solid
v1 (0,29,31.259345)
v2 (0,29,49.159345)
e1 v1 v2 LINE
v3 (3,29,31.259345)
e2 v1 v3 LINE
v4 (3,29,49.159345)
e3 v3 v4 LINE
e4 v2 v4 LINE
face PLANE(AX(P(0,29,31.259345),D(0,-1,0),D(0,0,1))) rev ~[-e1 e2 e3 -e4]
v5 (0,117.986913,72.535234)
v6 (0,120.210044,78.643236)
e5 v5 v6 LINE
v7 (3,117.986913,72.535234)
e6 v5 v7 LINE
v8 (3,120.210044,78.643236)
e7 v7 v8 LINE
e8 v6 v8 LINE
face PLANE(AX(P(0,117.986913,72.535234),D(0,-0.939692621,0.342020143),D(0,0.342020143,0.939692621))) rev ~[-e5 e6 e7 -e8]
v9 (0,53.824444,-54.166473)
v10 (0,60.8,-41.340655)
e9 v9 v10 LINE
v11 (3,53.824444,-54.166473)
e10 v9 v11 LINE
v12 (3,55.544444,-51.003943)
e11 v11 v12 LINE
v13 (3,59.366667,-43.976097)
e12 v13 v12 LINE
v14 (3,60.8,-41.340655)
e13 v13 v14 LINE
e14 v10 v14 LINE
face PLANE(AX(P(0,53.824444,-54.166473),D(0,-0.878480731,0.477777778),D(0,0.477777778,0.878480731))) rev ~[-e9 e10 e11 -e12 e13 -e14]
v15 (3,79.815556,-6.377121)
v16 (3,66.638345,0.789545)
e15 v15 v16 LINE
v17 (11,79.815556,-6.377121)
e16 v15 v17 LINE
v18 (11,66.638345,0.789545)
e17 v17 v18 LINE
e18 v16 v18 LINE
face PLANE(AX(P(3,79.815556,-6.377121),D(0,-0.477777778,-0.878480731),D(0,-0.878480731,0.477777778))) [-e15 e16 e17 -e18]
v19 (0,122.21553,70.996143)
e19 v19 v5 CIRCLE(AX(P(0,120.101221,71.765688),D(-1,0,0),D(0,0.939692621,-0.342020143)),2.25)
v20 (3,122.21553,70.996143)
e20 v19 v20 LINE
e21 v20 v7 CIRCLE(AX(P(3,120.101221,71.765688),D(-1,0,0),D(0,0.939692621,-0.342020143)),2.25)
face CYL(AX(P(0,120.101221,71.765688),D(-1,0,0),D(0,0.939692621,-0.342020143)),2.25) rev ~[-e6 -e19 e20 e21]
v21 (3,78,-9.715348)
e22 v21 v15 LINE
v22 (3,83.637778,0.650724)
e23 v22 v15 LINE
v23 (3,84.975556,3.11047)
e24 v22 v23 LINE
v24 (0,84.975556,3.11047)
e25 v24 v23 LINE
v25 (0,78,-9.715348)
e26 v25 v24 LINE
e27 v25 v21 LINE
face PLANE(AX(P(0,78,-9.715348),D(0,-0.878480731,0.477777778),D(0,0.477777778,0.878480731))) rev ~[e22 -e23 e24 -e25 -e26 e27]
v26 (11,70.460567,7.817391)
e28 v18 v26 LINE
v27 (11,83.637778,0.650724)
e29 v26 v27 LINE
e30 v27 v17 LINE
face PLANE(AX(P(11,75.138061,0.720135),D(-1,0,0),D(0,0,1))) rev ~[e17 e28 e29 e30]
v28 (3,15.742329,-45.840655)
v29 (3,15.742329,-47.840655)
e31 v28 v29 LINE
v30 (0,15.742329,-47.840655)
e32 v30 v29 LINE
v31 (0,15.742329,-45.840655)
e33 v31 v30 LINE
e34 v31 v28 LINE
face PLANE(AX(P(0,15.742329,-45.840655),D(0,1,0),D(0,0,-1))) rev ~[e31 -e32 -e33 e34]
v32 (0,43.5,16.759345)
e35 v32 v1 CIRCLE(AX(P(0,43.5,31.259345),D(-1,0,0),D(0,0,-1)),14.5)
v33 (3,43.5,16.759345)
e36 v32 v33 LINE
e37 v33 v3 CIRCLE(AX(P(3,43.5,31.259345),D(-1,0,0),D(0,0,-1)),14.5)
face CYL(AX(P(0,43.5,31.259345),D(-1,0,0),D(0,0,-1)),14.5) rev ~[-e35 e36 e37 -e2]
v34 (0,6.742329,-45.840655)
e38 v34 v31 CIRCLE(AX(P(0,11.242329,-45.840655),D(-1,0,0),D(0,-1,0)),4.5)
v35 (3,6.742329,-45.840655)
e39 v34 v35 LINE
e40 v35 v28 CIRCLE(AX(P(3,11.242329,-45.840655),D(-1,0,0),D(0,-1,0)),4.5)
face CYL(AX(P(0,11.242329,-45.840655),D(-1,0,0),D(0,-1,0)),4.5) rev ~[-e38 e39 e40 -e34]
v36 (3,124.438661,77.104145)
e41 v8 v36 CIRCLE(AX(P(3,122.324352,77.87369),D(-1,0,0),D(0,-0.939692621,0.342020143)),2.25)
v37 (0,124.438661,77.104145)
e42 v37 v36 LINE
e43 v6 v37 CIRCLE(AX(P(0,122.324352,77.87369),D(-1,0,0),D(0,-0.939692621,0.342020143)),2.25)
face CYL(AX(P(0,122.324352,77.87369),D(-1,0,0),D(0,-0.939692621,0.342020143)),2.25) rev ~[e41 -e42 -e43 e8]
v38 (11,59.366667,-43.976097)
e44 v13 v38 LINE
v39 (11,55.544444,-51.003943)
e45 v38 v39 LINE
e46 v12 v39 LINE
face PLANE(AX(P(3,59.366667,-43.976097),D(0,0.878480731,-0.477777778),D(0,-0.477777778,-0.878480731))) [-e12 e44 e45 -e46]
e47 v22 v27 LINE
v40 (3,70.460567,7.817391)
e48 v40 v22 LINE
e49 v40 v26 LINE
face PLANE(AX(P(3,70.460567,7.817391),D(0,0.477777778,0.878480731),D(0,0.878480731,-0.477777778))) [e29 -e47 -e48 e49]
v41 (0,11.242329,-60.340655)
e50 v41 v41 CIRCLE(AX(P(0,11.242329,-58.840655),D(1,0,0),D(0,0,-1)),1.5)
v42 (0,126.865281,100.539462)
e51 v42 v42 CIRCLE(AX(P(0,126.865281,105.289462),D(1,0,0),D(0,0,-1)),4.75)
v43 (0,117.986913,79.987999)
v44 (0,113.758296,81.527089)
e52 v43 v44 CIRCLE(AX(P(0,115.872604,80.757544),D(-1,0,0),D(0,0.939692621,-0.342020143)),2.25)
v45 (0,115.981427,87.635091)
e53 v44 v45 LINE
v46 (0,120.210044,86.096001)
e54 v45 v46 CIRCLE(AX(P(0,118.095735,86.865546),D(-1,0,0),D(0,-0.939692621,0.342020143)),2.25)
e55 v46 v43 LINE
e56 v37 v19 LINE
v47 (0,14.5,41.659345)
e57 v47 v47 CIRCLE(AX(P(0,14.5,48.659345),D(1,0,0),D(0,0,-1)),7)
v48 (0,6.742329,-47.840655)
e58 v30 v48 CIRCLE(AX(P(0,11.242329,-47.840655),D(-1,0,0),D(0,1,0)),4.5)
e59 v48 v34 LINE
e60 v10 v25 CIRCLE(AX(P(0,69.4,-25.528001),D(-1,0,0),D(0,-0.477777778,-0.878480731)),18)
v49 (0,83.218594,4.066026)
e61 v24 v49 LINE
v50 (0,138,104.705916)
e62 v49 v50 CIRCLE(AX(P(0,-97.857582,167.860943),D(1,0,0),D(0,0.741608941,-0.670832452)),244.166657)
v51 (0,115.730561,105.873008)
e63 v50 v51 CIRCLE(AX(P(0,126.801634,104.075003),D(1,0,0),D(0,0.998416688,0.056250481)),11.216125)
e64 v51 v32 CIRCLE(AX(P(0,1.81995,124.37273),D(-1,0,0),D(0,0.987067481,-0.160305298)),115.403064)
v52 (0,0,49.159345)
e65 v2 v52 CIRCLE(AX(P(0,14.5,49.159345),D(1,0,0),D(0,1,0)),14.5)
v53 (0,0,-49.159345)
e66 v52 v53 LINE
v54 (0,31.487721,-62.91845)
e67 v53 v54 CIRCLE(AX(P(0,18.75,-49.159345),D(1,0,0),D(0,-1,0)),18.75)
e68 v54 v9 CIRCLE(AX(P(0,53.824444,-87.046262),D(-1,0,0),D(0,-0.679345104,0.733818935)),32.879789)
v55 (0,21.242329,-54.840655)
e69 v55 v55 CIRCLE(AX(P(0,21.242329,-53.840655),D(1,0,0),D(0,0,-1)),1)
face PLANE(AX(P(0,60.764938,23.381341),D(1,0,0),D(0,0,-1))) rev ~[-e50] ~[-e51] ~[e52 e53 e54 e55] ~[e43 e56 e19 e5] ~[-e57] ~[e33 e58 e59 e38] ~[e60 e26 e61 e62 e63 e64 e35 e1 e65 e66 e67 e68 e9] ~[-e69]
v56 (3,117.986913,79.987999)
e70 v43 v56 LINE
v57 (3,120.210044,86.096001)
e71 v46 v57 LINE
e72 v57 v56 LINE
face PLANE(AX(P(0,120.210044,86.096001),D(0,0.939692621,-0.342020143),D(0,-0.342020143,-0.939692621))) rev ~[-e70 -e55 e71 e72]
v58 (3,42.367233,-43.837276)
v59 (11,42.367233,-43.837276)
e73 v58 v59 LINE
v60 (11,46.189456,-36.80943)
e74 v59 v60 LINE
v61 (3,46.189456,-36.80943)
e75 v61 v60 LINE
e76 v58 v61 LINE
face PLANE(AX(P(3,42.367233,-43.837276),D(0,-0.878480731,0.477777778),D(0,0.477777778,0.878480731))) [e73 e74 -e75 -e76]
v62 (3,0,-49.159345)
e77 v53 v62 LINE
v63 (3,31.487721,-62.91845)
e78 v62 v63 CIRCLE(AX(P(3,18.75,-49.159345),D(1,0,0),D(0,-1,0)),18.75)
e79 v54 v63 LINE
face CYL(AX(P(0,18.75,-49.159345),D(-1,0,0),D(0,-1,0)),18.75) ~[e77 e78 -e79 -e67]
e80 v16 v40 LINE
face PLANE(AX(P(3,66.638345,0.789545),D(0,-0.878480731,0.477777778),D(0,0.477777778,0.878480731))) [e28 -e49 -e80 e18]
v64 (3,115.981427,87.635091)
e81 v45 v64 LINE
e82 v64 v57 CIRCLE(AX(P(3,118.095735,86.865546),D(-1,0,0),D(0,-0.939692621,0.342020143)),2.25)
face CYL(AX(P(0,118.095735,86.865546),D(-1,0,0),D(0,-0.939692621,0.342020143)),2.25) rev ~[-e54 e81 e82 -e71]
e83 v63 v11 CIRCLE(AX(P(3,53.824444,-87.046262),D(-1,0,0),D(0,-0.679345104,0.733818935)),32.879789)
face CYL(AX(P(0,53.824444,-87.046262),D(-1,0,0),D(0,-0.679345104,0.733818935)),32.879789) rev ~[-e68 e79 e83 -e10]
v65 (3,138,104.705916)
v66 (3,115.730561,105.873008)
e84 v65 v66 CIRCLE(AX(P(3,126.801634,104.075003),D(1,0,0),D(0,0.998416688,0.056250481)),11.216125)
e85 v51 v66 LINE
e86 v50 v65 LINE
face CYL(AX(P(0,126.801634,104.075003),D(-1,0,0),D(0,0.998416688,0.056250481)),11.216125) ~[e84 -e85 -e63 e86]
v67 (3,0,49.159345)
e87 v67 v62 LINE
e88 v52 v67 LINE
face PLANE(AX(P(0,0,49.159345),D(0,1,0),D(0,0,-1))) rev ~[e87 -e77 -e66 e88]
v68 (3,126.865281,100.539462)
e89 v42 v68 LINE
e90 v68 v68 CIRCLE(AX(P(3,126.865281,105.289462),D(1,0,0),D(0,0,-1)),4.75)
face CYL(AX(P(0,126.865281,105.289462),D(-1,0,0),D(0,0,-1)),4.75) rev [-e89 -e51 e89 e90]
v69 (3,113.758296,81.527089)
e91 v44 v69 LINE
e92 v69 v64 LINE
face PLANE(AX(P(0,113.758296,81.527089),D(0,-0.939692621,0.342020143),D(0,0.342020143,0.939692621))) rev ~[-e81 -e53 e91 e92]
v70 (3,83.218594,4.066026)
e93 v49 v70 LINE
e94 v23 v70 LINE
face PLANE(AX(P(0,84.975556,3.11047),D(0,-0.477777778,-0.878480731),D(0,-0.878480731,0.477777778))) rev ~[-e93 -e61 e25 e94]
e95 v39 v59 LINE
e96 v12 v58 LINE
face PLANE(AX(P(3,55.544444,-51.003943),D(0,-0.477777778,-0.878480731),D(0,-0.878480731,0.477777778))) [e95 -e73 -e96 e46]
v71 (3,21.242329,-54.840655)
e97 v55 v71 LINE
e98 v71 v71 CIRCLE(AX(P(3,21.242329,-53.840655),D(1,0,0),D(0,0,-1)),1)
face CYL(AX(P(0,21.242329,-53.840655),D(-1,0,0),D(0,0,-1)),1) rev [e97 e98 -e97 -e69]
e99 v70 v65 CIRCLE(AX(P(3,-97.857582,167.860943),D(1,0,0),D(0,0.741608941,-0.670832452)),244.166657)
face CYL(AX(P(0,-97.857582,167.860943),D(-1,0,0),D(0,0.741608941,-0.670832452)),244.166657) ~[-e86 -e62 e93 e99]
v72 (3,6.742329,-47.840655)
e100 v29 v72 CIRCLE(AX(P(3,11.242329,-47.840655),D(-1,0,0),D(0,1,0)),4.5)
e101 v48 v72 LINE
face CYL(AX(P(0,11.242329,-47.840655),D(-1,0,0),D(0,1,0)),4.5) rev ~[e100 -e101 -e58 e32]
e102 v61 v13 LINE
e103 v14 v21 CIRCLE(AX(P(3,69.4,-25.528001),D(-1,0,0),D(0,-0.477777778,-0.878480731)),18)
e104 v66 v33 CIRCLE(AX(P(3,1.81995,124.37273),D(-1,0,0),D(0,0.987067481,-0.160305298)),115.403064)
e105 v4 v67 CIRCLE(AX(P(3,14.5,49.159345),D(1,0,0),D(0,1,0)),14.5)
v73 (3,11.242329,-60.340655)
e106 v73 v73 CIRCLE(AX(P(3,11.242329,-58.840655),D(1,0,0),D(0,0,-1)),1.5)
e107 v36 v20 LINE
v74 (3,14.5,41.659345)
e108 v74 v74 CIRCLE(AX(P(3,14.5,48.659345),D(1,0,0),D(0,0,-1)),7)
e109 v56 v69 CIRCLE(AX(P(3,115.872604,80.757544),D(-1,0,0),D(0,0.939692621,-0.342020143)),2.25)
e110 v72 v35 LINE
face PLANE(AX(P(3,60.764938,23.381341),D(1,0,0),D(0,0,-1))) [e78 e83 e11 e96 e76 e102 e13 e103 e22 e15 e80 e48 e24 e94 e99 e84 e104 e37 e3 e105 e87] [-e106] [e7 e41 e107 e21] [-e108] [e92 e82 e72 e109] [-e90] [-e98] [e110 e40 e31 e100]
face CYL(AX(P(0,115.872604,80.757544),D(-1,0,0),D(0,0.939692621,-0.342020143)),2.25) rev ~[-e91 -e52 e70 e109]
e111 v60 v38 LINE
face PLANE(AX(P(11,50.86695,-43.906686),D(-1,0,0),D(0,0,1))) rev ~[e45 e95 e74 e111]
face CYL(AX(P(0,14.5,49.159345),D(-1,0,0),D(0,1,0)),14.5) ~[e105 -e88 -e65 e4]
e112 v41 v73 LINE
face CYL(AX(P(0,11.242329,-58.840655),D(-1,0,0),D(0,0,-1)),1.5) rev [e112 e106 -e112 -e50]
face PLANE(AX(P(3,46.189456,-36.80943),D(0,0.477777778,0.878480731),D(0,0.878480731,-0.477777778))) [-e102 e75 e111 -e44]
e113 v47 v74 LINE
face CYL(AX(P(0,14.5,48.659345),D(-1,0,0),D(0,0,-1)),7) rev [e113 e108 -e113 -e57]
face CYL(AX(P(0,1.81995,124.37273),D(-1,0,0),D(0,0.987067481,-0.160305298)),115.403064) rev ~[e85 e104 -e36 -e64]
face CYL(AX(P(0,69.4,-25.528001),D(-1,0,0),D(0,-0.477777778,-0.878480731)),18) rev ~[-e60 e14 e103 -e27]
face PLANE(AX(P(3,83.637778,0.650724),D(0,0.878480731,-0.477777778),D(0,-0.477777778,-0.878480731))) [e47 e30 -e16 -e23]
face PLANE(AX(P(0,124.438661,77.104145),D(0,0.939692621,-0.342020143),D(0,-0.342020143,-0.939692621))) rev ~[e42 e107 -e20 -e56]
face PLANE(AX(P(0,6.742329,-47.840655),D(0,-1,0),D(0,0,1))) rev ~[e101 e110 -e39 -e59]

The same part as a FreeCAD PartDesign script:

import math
import FreeCAD as App
import Part
import Sketcher
Q = App.Units.Quantity


def add_polygon(sketch, points):
    """Adds a closed chain of lines whose ends are joined by coincident constraints."""
    first, n = sketch.GeometryCount, len(points)
    for a, b in zip(points, points[1:] + points[:1]):
        sketch.addGeometry(Part.LineSegment(App.Vector(*a, 0), App.Vector(*b, 0)), False)
    for i in range(n):
        sketch.addConstraint(Sketcher.Constraint("Coincident", first + i, 2, first + (i + 1) % n, 1))

doc = App.newDocument("Part")
body = doc.addObject("PartDesign::Body", "Body")

# Sketch on YZ plane
sketch1 = doc.addObject("Sketcher::SketchObject", "Sketch")
body.addObject(sketch1)
sketch1.AttachmentSupport = (doc.YZ_Plane, [""])
sketch1.MapMode = "FlatFace"
sketch1.addGeometry([
    Part.LineSegment(App.Vector(0, 49.159345, 0), App.Vector(0, -49.159345, 0)),  # 0
    Part.ArcOfCircle(Part.Circle(App.Vector(18.75, -49.159345, 0), App.Vector(0, 0, 1), 18.75), math.radians(180), math.radians(312.792488)),  # 1
    Part.ArcOfCircle(Part.Circle(App.Vector(53.824444, -87.046262, 0), App.Vector(0, 0, 1), 32.879789), math.radians(90), math.radians(132.792488)),  # 2
    Part.LineSegment(App.Vector(53.824444, -54.166473, 0), App.Vector(60.8, -41.340655, 0)),  # 3
    Part.ArcOfCircle(Part.Circle(App.Vector(69.4, -25.528001, 0), App.Vector(0, 0, 1), 18), math.radians(61.459635), math.radians(241.459635)),  # 4
    Part.LineSegment(App.Vector(78, -9.715348, 0), App.Vector(84.975556, 3.11047, 0)),  # 5
    Part.LineSegment(App.Vector(84.975556, 3.11047, 0), App.Vector(83.218594, 4.066026, 0)),  # 6
    Part.ArcOfCircle(Part.Circle(App.Vector(-97.857582, 167.860943, 0), App.Vector(0, 0, 1), 244.166657), math.radians(-42.131346), math.radians(-14.990294)),  # 7
    Part.ArcOfCircle(Part.Circle(App.Vector(126.801634, 104.075003, 0), App.Vector(0, 0, 1), 11.216125), math.radians(3.224617), math.radians(170.775383)),  # 8
    Part.ArcOfCircle(Part.Circle(App.Vector(1.81995, 124.37273, 0), App.Vector(0, 0, 1), 115.403064), math.radians(-68.827973), math.radians(-9.224617)),  # 9
    Part.ArcOfCircle(Part.Circle(App.Vector(43.5, 31.259345, 0), App.Vector(0, 0, 1), 14.5), math.radians(-180), math.radians(-90)),  # 10
    Part.LineSegment(App.Vector(29, 31.259345, 0), App.Vector(29, 49.159345, 0)),  # 11
    Part.ArcOfCircle(Part.Circle(App.Vector(14.5, 49.159345, 0), App.Vector(0, 0, 1), 14.5), math.radians(0), math.radians(180)),  # 12
    Part.Circle(App.Vector(14.5, 48.659345, 0), App.Vector(0, 0, 1), 7),  # 13
    Part.ArcOfCircle(Part.Circle(App.Vector(11.242329, -45.840655, 0), App.Vector(0, 0, 1), 4.5), math.radians(0), math.radians(180)),  # 14
    Part.LineSegment(App.Vector(15.742329, -45.840655, 0), App.Vector(15.742329, -47.840655, 0)),  # 15
    Part.ArcOfCircle(Part.Circle(App.Vector(11.242329, -47.840655, 0), App.Vector(0, 0, 1), 4.5), math.radians(180), math.radians(360)),  # 16
    Part.LineSegment(App.Vector(6.742329, -47.840655, 0), App.Vector(6.742329, -45.840655, 0)),  # 17
    Part.Circle(App.Vector(11.242329, -58.840655, 0), App.Vector(0, 0, 1), 1.5),  # 18
    Part.Circle(App.Vector(21.242329, -53.840655, 0), App.Vector(0, 0, 1), 1),  # 19
    Part.Circle(App.Vector(126.865281, 105.289462, 0), App.Vector(0, 0, 1), 4.75),  # 20
    Part.ArcOfCircle(Part.Circle(App.Vector(118.095735, 86.865546, 0), App.Vector(0, 0, 1), 2.25), math.radians(-20), math.radians(160)),  # 21
    Part.LineSegment(App.Vector(120.210044, 86.096001, 0), App.Vector(117.986913, 79.987999, 0)),  # 22
    Part.ArcOfCircle(Part.Circle(App.Vector(115.872604, 80.757544, 0), App.Vector(0, 0, 1), 2.25), math.radians(160), math.radians(340)),  # 23
    Part.LineSegment(App.Vector(113.758296, 81.527089, 0), App.Vector(115.981427, 87.635091, 0)),  # 24
    Part.ArcOfCircle(Part.Circle(App.Vector(122.324352, 77.87369, 0), App.Vector(0, 0, 1), 2.25), math.radians(-20), math.radians(160)),  # 25
    Part.LineSegment(App.Vector(124.438661, 77.104145, 0), App.Vector(122.21553, 70.996143, 0)),  # 26
    Part.ArcOfCircle(Part.Circle(App.Vector(120.101221, 71.765688, 0), App.Vector(0, 0, 1), 2.25), math.radians(160), math.radians(340)),  # 27
    Part.LineSegment(App.Vector(117.986913, 72.535234, 0), App.Vector(120.210044, 78.643236, 0)),  # 28
], False)
sketch1.addConstraint([
    Sketcher.Constraint("Tangent", 0, 2, 1, 1),
    Sketcher.Constraint("Tangent", 1, 2, 2, 2),
    Sketcher.Constraint("Coincident", 2, 1, 3, 1),
    Sketcher.Constraint("Coincident", 3, 2, 4, 2),
    Sketcher.Constraint("Coincident", 4, 1, 5, 1),
    Sketcher.Constraint("Coincident", 5, 2, 6, 1),
    Sketcher.Constraint("Coincident", 6, 2, 7, 1),
    Sketcher.Constraint("Coincident", 7, 2, 8, 1),
    Sketcher.Constraint("Tangent", 8, 2, 9, 2),
    Sketcher.Constraint("Coincident", 9, 1, 10, 2),
    Sketcher.Constraint("Tangent", 10, 1, 11, 1),
    Sketcher.Constraint("Tangent", 11, 2, 12, 1),
    Sketcher.Constraint("Tangent", 12, 2, 0, 1),
    Sketcher.Constraint("Tangent", 14, 1, 15, 1),
    Sketcher.Constraint("Tangent", 15, 2, 16, 2),
    Sketcher.Constraint("Tangent", 16, 1, 17, 1),
    Sketcher.Constraint("Tangent", 17, 2, 14, 2),
    Sketcher.Constraint("Tangent", 21, 1, 22, 1),
    Sketcher.Constraint("Tangent", 22, 2, 23, 2),
    Sketcher.Constraint("Tangent", 23, 1, 24, 1),
    Sketcher.Constraint("Tangent", 24, 2, 21, 2),
    Sketcher.Constraint("Tangent", 25, 1, 26, 1),
    Sketcher.Constraint("Tangent", 26, 2, 27, 2),
    Sketcher.Constraint("Tangent", 27, 1, 28, 1),
    Sketcher.Constraint("Tangent", 28, 2, 25, 2),
    Sketcher.Constraint("Vertical", 0),
    Sketcher.Constraint("Vertical", 11),
    Sketcher.Constraint("Vertical", 15),
    Sketcher.Constraint("Vertical", 17),
    Sketcher.Constraint("Equal", 10, 12),
    Sketcher.Constraint("Equal", 21, 23),
    Sketcher.Constraint("Equal", 23, 25),
    Sketcher.Constraint("Equal", 25, 27),
    Sketcher.Constraint("Symmetric", 0, 2, 12, 2, -1, 1),
    Sketcher.Constraint("Parallel", 3, 5),
    Sketcher.Constraint("Perpendicular", 5, 6),
    Sketcher.Constraint("Parallel", 24, 26),
    Sketcher.Constraint("Vertical", 12, 3, 13, 3),
    Sketcher.Constraint("Vertical", 16, 3, 18, 3),
    Sketcher.Constraint("Vertical", 10, 3, 9, 1),
    Sketcher.Constraint("Vertical", 22, 2, 27, 1),
    Sketcher.Constraint("Vertical", 21, 1, 28, 2),
    Sketcher.Constraint("Equal", 3, 5),
    Sketcher.Constraint("Diameter", 13, 14.0),
    Sketcher.Constraint("Diameter", 18, 3.0),
    Sketcher.Constraint("Diameter", 19, 2.0),
    Sketcher.Constraint("Radius", 4, 18.0),
    Sketcher.Constraint("Diameter", 20, 9.5),
    Sketcher.Constraint("Radius", 10, 14.5),
    Sketcher.Constraint("Radius", 14, 4.5),
    Sketcher.Constraint("DistanceY", 15, 2, 15, 1, 2.0),
    Sketcher.Constraint("Angle", 22, Q("-110 deg")),
    Sketcher.Constraint("Radius", 1, 18.75),
    Sketcher.Constraint("Radius", 21, 2.25),
    Sketcher.Constraint("Distance", 6, 2.0),
    Sketcher.Constraint("DistanceY", 11, 1, 11, 2, 17.9),
    Sketcher.Constraint("DistanceX", -1, 1, 4, 1, 78.0),
    Sketcher.Constraint("DistanceX", -1, 1, 7, 2, 138.0),
    Sketcher.Constraint("DistanceY", 18, 3, 16, 3, 11.0),
    Sketcher.Constraint("DistanceX", 18, 3, 19, 3, 10.0),
    Sketcher.Constraint("DistanceY", 18, 3, 19, 3, 5.0),
    Sketcher.Constraint("Distance", 3, 14.6),
    Sketcher.Constraint("Distance", 22, 6.5),
    Sketcher.Constraint("DistanceX", -1, 1, 4, 3, 69.4),
    Sketcher.Constraint("DistanceX", -1, 1, 3, 2, 60.8),
    Sketcher.Constraint("DistanceY", 13, 3, 12, 3, 0.5),
    Sketcher.Constraint("DistanceY", 14, 3, 10, 3, 77.1),
    Sketcher.Constraint("DistanceY", 19, 3, 3, 2, 12.5),
    Sketcher.Constraint("Radius", 2, 32.879789),
    Sketcher.Constraint("DistanceY", 4, 3, -1, 1, 25.528001),
    Sketcher.Constraint("DistanceY", -1, 1, 21, 1, 86.096001),
    Sketcher.Constraint("Radius", 7, 244.166657),
    Sketcher.Constraint("Radius", 8, 11.216125),
    Sketcher.Constraint("Radius", 9, 115.403064),
    Sketcher.Constraint("DistanceX", 21, 3, 8, 3, 8.705898),
    Sketcher.Constraint("DistanceY", 25, 3, 23, 1, 3.653399),
    Sketcher.Constraint("DistanceX", 7, 3, -1, 1, 97.857582),
    Sketcher.Constraint("DistanceX", -1, 1, 9, 3, 1.81995),
    Sketcher.Constraint("DistanceX", -1, 1, 14, 3, 11.242329),
    Sketcher.Constraint("DistanceX", -1, 1, 20, 3, 126.865281),
    Sketcher.Constraint("DistanceY", -1, 1, 20, 3, 105.289462),
    Sketcher.Constraint("DistanceX", -1, 1, 27, 3, 120.101221),
])
pad1 = doc.addObject("PartDesign::Pad", "Pad")
body.addObject(pad1)
pad1.Profile = sketch1
pad1.Length = 3

# Sketch on YZ plane
sketch2 = doc.addObject("Sketcher::SketchObject", "Sketch001")
body.addObject(sketch2)
sketch2.AttachmentSupport = (doc.YZ_Plane, [""])
sketch2.MapMode = "FlatFace"
sketch2.AttachmentOffset = App.Placement(App.Vector(0, 0, 3), App.Rotation())
add_polygon(sketch2, [(55.544444, -51.003943), (59.366667, -43.976097), (46.189456, -36.80943), (42.367233, -43.837276)])  # lines 0-3
add_polygon(sketch2, [(79.815556, -6.377121), (83.637778, 0.650724), (70.460567, 7.817391), (66.638345, 0.789545)])  # lines 4-7
sketch2.addConstraint([
    Sketcher.Constraint("Perpendicular", 0, 1),
    Sketcher.Constraint("Perpendicular", 1, 2),
    Sketcher.Constraint("Perpendicular", 2, 3),
    Sketcher.Constraint("Perpendicular", 3, 4),
    Sketcher.Constraint("Perpendicular", 4, 5),
    Sketcher.Constraint("Perpendicular", 5, 6),
    Sketcher.Constraint("Perpendicular", 6, 7),
    Sketcher.Constraint("Equal", 2, 4),
    Sketcher.Constraint("Equal", 3, 5),
    Sketcher.Constraint("Distance", 0, 8.0),
    Sketcher.Constraint("Distance", 1, 15.0),
    Sketcher.Constraint("DistanceY", 2, 2, 4, 2, 44.488),
    Sketcher.Constraint("DistanceX", 0, 2, 5, 2, 11.0939),
    Sketcher.Constraint("DistanceX", 1, 2, 7, 2, 33.6261),
    Sketcher.Constraint("DistanceY", 1, 2, -1, 1, 36.80943),
    Sketcher.Constraint("DistanceX", -1, 1, 0, 2, 59.366667),
])
pad2 = doc.addObject("PartDesign::Pad", "Pad001")
body.addObject(pad2)
pad2.Profile = sketch2
pad2.Length = 8

doc.recompute()
